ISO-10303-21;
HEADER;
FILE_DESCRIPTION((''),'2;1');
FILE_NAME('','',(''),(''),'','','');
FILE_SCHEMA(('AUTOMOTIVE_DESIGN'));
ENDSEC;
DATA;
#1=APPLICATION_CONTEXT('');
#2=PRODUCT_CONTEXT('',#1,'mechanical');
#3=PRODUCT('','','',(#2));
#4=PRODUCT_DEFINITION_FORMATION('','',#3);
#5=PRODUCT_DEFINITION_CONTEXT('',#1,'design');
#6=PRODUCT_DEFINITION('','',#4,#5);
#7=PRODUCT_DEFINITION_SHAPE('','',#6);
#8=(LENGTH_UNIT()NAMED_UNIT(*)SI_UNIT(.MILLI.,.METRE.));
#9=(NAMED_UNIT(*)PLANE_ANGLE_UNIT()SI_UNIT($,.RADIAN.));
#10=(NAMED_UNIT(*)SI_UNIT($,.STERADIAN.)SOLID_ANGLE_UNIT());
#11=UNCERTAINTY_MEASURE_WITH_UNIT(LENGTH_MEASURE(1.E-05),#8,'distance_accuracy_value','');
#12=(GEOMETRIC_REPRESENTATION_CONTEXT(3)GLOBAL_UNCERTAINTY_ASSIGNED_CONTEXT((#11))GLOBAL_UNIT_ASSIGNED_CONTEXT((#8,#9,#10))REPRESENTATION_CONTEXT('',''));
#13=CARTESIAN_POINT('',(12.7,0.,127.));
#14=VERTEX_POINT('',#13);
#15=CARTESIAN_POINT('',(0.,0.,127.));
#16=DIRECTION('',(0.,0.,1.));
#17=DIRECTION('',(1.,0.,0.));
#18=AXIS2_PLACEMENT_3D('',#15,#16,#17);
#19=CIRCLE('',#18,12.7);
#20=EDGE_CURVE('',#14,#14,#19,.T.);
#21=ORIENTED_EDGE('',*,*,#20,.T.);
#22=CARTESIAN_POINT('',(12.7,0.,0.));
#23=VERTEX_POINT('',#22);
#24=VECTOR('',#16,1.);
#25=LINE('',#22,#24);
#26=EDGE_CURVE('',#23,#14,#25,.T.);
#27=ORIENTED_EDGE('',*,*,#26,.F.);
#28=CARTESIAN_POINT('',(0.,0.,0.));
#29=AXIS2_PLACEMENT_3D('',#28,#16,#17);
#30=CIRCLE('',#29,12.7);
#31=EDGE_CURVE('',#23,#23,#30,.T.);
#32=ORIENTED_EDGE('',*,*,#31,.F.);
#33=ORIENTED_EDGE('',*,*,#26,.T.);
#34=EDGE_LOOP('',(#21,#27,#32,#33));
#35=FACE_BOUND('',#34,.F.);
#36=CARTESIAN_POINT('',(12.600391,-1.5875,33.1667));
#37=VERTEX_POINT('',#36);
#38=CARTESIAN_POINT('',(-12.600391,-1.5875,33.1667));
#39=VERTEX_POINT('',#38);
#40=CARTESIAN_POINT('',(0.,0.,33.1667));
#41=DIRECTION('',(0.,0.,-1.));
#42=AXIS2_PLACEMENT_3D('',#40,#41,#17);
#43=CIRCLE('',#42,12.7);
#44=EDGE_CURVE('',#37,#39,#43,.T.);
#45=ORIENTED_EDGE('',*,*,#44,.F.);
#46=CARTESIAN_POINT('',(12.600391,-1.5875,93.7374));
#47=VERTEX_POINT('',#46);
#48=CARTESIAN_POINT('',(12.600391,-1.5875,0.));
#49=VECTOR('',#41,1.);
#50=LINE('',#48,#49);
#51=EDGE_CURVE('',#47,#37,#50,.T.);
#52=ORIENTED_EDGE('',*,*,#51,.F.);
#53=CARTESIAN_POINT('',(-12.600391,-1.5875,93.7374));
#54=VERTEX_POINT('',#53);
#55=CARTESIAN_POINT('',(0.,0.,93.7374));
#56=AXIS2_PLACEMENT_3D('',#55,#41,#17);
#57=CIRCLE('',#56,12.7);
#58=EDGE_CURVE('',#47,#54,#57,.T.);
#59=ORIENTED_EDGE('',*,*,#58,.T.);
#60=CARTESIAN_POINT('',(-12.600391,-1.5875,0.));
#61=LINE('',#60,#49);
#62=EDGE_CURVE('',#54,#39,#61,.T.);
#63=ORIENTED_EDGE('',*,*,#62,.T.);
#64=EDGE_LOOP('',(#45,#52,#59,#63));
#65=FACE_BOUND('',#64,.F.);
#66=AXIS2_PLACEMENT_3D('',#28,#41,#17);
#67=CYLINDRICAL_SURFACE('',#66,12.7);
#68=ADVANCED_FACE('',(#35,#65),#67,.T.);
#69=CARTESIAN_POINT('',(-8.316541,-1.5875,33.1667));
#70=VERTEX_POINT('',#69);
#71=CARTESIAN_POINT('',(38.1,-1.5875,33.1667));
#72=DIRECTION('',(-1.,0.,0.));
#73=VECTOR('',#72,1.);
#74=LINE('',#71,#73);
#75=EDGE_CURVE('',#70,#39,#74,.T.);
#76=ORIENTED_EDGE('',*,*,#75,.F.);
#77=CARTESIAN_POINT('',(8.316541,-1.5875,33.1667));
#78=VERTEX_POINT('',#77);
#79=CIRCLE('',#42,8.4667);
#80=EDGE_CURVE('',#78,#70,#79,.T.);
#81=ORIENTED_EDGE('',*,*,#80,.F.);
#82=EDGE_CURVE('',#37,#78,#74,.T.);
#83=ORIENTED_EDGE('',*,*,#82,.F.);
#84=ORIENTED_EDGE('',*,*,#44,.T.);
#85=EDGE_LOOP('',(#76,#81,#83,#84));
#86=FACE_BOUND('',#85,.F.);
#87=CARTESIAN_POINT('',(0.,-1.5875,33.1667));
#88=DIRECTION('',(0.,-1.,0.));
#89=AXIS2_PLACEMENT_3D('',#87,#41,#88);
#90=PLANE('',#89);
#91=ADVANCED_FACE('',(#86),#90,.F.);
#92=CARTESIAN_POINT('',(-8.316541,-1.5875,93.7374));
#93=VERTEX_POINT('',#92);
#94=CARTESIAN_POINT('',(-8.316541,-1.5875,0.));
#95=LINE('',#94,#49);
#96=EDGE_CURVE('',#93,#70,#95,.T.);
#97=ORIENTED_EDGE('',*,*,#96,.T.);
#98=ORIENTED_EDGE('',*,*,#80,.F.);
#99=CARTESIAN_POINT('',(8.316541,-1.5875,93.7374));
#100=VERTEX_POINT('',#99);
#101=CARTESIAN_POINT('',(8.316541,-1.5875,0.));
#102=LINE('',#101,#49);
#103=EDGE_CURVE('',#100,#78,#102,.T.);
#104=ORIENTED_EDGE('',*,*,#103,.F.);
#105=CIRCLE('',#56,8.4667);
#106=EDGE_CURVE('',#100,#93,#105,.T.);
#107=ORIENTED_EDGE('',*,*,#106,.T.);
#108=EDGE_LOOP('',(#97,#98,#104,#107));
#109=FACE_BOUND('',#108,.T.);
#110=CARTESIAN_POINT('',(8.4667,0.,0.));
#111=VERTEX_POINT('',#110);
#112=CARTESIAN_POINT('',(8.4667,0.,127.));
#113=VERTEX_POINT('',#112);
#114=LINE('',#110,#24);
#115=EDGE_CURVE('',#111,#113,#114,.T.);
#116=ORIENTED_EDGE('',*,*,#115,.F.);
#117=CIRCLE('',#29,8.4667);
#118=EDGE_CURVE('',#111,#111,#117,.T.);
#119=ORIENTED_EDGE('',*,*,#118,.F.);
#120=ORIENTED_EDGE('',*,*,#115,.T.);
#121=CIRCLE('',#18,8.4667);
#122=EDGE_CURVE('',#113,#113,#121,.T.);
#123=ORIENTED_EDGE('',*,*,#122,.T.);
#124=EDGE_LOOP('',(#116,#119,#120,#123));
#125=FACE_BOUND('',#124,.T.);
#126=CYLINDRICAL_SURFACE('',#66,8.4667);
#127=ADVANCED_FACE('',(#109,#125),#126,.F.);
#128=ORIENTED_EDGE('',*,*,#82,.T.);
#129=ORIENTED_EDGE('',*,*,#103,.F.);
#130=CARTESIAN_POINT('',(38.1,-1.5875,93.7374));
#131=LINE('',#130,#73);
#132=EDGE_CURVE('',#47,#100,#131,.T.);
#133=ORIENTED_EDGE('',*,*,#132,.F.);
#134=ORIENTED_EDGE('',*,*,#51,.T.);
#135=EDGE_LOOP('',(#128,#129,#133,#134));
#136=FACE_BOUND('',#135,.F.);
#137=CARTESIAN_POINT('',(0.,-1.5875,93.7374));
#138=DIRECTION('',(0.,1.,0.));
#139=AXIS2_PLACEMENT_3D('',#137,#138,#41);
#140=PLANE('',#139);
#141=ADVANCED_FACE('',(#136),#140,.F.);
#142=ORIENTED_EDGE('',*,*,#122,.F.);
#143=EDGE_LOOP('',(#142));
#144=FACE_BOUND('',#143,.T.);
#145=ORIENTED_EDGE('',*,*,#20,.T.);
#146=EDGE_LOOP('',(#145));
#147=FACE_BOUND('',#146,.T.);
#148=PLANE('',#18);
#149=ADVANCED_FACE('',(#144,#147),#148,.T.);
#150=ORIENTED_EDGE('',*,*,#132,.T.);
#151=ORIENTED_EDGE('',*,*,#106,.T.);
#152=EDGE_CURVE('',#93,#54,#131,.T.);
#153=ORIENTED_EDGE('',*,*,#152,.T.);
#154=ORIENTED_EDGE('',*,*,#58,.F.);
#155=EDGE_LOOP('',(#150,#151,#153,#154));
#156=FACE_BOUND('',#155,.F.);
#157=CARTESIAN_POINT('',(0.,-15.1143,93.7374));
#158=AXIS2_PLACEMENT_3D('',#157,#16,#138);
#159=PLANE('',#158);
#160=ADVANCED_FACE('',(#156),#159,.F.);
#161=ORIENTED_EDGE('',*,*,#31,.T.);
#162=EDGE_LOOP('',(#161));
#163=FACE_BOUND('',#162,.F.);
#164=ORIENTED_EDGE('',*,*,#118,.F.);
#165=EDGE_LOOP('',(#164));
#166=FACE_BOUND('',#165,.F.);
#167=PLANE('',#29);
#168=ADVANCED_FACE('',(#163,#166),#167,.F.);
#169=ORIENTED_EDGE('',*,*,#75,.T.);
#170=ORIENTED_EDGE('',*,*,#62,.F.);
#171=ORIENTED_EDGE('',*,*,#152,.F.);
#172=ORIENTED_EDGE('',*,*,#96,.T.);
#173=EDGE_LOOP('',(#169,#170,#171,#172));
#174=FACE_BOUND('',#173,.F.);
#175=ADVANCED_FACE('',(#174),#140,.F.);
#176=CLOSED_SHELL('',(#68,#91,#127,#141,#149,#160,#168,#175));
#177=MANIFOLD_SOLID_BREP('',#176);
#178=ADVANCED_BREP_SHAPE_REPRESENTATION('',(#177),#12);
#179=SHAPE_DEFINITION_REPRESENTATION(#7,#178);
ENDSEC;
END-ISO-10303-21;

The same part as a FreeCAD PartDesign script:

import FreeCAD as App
import Part
import Sketcher
Q = App.Units.Quantity

doc = App.newDocument("Part")
body = doc.addObject("PartDesign::Body", "Body")

# Sketch on XY plane
sketch1 = body.newObject("Sketcher::SketchObject", "Sketch")
sketch1.AttachmentSupport = (doc.getObject("XY_Plane"), [""])
sketch1.MapMode = "FlatFace"
sketch1.addGeometry([
    Part.Circle(App.Vector(0, 0, 0), App.Vector(0, 0, 1), 13),
    Part.Circle(App.Vector(0, 0, 0), App.Vector(0, 0, 1), 8),
], False)
sketch1.addConstraint([
    Sketcher.Constraint("Coincident", 0, 3, -1, 1),
    Sketcher.Constraint("Coincident", 1, 3, -1, 1),
    Sketcher.Constraint("Diameter", 0, Q("1 in")),
    Sketcher.Constraint("Diameter", 1, Q("16.9334 mm")),
])
pad1 = body.newObject("PartDesign::Pad", "Pad")
pad1.Profile = sketch1
pad1.Length = Q("5 in")

# Sketch on YZ plane
sketch2 = body.newObject("Sketcher::SketchObject", "Sketch001")
sketch2.AttachmentSupport = (doc.getObject("YZ_Plane"), [""])
sketch2.MapMode = "FlatFace"
sketch2.addGeometry([
    Part.LineSegment(App.Vector(-2, 94, 0), App.Vector(-15, 94, 0)),
    Part.LineSegment(App.Vector(-15, 94, 0), App.Vector(-15, 33, 0)),
    Part.LineSegment(App.Vector(-15, 33, 0), App.Vector(-2, 33, 0)),
    Part.LineSegment(App.Vector(-2, 33, 0), App.Vector(-2, 94, 0)),
], False)
sketch2.addConstraint([
    Sketcher.Constraint("Coincident", 0, 2, 1, 1),
    Sketcher.Constraint("Coincident", 1, 2, 2, 1),
    Sketcher.Constraint("Coincident", 2, 2, 3, 1),
    Sketcher.Constraint("Coincident", 3, 2, 0, 1),
    Sketcher.Constraint("Horizontal", 0),
    Sketcher.Constraint("Vertical", 1),
    Sketcher.Constraint("Horizontal", 2),
    Sketcher.Constraint("Vertical", 3),
    Sketcher.Constraint("DistanceX", 2, 2, -1, 1, Q("0.0625 in")),
    Sketcher.Constraint("DistanceX", 0, 2, 0, 1, Q("13.5268 mm")),
    Sketcher.Constraint("DistanceY", 1, 2, 1, 1, Q("60.5707 mm")),
    Sketcher.Constraint("DistanceY", -1, 1, 0, 2, Q("93.7374 mm")),
])
pocket1 = body.newObject("PartDesign::Pocket", "Pocket")
pocket1.Profile = sketch2
pocket1.Length = Q("3 in")
pocket1.Midplane = True

doc.recompute()
